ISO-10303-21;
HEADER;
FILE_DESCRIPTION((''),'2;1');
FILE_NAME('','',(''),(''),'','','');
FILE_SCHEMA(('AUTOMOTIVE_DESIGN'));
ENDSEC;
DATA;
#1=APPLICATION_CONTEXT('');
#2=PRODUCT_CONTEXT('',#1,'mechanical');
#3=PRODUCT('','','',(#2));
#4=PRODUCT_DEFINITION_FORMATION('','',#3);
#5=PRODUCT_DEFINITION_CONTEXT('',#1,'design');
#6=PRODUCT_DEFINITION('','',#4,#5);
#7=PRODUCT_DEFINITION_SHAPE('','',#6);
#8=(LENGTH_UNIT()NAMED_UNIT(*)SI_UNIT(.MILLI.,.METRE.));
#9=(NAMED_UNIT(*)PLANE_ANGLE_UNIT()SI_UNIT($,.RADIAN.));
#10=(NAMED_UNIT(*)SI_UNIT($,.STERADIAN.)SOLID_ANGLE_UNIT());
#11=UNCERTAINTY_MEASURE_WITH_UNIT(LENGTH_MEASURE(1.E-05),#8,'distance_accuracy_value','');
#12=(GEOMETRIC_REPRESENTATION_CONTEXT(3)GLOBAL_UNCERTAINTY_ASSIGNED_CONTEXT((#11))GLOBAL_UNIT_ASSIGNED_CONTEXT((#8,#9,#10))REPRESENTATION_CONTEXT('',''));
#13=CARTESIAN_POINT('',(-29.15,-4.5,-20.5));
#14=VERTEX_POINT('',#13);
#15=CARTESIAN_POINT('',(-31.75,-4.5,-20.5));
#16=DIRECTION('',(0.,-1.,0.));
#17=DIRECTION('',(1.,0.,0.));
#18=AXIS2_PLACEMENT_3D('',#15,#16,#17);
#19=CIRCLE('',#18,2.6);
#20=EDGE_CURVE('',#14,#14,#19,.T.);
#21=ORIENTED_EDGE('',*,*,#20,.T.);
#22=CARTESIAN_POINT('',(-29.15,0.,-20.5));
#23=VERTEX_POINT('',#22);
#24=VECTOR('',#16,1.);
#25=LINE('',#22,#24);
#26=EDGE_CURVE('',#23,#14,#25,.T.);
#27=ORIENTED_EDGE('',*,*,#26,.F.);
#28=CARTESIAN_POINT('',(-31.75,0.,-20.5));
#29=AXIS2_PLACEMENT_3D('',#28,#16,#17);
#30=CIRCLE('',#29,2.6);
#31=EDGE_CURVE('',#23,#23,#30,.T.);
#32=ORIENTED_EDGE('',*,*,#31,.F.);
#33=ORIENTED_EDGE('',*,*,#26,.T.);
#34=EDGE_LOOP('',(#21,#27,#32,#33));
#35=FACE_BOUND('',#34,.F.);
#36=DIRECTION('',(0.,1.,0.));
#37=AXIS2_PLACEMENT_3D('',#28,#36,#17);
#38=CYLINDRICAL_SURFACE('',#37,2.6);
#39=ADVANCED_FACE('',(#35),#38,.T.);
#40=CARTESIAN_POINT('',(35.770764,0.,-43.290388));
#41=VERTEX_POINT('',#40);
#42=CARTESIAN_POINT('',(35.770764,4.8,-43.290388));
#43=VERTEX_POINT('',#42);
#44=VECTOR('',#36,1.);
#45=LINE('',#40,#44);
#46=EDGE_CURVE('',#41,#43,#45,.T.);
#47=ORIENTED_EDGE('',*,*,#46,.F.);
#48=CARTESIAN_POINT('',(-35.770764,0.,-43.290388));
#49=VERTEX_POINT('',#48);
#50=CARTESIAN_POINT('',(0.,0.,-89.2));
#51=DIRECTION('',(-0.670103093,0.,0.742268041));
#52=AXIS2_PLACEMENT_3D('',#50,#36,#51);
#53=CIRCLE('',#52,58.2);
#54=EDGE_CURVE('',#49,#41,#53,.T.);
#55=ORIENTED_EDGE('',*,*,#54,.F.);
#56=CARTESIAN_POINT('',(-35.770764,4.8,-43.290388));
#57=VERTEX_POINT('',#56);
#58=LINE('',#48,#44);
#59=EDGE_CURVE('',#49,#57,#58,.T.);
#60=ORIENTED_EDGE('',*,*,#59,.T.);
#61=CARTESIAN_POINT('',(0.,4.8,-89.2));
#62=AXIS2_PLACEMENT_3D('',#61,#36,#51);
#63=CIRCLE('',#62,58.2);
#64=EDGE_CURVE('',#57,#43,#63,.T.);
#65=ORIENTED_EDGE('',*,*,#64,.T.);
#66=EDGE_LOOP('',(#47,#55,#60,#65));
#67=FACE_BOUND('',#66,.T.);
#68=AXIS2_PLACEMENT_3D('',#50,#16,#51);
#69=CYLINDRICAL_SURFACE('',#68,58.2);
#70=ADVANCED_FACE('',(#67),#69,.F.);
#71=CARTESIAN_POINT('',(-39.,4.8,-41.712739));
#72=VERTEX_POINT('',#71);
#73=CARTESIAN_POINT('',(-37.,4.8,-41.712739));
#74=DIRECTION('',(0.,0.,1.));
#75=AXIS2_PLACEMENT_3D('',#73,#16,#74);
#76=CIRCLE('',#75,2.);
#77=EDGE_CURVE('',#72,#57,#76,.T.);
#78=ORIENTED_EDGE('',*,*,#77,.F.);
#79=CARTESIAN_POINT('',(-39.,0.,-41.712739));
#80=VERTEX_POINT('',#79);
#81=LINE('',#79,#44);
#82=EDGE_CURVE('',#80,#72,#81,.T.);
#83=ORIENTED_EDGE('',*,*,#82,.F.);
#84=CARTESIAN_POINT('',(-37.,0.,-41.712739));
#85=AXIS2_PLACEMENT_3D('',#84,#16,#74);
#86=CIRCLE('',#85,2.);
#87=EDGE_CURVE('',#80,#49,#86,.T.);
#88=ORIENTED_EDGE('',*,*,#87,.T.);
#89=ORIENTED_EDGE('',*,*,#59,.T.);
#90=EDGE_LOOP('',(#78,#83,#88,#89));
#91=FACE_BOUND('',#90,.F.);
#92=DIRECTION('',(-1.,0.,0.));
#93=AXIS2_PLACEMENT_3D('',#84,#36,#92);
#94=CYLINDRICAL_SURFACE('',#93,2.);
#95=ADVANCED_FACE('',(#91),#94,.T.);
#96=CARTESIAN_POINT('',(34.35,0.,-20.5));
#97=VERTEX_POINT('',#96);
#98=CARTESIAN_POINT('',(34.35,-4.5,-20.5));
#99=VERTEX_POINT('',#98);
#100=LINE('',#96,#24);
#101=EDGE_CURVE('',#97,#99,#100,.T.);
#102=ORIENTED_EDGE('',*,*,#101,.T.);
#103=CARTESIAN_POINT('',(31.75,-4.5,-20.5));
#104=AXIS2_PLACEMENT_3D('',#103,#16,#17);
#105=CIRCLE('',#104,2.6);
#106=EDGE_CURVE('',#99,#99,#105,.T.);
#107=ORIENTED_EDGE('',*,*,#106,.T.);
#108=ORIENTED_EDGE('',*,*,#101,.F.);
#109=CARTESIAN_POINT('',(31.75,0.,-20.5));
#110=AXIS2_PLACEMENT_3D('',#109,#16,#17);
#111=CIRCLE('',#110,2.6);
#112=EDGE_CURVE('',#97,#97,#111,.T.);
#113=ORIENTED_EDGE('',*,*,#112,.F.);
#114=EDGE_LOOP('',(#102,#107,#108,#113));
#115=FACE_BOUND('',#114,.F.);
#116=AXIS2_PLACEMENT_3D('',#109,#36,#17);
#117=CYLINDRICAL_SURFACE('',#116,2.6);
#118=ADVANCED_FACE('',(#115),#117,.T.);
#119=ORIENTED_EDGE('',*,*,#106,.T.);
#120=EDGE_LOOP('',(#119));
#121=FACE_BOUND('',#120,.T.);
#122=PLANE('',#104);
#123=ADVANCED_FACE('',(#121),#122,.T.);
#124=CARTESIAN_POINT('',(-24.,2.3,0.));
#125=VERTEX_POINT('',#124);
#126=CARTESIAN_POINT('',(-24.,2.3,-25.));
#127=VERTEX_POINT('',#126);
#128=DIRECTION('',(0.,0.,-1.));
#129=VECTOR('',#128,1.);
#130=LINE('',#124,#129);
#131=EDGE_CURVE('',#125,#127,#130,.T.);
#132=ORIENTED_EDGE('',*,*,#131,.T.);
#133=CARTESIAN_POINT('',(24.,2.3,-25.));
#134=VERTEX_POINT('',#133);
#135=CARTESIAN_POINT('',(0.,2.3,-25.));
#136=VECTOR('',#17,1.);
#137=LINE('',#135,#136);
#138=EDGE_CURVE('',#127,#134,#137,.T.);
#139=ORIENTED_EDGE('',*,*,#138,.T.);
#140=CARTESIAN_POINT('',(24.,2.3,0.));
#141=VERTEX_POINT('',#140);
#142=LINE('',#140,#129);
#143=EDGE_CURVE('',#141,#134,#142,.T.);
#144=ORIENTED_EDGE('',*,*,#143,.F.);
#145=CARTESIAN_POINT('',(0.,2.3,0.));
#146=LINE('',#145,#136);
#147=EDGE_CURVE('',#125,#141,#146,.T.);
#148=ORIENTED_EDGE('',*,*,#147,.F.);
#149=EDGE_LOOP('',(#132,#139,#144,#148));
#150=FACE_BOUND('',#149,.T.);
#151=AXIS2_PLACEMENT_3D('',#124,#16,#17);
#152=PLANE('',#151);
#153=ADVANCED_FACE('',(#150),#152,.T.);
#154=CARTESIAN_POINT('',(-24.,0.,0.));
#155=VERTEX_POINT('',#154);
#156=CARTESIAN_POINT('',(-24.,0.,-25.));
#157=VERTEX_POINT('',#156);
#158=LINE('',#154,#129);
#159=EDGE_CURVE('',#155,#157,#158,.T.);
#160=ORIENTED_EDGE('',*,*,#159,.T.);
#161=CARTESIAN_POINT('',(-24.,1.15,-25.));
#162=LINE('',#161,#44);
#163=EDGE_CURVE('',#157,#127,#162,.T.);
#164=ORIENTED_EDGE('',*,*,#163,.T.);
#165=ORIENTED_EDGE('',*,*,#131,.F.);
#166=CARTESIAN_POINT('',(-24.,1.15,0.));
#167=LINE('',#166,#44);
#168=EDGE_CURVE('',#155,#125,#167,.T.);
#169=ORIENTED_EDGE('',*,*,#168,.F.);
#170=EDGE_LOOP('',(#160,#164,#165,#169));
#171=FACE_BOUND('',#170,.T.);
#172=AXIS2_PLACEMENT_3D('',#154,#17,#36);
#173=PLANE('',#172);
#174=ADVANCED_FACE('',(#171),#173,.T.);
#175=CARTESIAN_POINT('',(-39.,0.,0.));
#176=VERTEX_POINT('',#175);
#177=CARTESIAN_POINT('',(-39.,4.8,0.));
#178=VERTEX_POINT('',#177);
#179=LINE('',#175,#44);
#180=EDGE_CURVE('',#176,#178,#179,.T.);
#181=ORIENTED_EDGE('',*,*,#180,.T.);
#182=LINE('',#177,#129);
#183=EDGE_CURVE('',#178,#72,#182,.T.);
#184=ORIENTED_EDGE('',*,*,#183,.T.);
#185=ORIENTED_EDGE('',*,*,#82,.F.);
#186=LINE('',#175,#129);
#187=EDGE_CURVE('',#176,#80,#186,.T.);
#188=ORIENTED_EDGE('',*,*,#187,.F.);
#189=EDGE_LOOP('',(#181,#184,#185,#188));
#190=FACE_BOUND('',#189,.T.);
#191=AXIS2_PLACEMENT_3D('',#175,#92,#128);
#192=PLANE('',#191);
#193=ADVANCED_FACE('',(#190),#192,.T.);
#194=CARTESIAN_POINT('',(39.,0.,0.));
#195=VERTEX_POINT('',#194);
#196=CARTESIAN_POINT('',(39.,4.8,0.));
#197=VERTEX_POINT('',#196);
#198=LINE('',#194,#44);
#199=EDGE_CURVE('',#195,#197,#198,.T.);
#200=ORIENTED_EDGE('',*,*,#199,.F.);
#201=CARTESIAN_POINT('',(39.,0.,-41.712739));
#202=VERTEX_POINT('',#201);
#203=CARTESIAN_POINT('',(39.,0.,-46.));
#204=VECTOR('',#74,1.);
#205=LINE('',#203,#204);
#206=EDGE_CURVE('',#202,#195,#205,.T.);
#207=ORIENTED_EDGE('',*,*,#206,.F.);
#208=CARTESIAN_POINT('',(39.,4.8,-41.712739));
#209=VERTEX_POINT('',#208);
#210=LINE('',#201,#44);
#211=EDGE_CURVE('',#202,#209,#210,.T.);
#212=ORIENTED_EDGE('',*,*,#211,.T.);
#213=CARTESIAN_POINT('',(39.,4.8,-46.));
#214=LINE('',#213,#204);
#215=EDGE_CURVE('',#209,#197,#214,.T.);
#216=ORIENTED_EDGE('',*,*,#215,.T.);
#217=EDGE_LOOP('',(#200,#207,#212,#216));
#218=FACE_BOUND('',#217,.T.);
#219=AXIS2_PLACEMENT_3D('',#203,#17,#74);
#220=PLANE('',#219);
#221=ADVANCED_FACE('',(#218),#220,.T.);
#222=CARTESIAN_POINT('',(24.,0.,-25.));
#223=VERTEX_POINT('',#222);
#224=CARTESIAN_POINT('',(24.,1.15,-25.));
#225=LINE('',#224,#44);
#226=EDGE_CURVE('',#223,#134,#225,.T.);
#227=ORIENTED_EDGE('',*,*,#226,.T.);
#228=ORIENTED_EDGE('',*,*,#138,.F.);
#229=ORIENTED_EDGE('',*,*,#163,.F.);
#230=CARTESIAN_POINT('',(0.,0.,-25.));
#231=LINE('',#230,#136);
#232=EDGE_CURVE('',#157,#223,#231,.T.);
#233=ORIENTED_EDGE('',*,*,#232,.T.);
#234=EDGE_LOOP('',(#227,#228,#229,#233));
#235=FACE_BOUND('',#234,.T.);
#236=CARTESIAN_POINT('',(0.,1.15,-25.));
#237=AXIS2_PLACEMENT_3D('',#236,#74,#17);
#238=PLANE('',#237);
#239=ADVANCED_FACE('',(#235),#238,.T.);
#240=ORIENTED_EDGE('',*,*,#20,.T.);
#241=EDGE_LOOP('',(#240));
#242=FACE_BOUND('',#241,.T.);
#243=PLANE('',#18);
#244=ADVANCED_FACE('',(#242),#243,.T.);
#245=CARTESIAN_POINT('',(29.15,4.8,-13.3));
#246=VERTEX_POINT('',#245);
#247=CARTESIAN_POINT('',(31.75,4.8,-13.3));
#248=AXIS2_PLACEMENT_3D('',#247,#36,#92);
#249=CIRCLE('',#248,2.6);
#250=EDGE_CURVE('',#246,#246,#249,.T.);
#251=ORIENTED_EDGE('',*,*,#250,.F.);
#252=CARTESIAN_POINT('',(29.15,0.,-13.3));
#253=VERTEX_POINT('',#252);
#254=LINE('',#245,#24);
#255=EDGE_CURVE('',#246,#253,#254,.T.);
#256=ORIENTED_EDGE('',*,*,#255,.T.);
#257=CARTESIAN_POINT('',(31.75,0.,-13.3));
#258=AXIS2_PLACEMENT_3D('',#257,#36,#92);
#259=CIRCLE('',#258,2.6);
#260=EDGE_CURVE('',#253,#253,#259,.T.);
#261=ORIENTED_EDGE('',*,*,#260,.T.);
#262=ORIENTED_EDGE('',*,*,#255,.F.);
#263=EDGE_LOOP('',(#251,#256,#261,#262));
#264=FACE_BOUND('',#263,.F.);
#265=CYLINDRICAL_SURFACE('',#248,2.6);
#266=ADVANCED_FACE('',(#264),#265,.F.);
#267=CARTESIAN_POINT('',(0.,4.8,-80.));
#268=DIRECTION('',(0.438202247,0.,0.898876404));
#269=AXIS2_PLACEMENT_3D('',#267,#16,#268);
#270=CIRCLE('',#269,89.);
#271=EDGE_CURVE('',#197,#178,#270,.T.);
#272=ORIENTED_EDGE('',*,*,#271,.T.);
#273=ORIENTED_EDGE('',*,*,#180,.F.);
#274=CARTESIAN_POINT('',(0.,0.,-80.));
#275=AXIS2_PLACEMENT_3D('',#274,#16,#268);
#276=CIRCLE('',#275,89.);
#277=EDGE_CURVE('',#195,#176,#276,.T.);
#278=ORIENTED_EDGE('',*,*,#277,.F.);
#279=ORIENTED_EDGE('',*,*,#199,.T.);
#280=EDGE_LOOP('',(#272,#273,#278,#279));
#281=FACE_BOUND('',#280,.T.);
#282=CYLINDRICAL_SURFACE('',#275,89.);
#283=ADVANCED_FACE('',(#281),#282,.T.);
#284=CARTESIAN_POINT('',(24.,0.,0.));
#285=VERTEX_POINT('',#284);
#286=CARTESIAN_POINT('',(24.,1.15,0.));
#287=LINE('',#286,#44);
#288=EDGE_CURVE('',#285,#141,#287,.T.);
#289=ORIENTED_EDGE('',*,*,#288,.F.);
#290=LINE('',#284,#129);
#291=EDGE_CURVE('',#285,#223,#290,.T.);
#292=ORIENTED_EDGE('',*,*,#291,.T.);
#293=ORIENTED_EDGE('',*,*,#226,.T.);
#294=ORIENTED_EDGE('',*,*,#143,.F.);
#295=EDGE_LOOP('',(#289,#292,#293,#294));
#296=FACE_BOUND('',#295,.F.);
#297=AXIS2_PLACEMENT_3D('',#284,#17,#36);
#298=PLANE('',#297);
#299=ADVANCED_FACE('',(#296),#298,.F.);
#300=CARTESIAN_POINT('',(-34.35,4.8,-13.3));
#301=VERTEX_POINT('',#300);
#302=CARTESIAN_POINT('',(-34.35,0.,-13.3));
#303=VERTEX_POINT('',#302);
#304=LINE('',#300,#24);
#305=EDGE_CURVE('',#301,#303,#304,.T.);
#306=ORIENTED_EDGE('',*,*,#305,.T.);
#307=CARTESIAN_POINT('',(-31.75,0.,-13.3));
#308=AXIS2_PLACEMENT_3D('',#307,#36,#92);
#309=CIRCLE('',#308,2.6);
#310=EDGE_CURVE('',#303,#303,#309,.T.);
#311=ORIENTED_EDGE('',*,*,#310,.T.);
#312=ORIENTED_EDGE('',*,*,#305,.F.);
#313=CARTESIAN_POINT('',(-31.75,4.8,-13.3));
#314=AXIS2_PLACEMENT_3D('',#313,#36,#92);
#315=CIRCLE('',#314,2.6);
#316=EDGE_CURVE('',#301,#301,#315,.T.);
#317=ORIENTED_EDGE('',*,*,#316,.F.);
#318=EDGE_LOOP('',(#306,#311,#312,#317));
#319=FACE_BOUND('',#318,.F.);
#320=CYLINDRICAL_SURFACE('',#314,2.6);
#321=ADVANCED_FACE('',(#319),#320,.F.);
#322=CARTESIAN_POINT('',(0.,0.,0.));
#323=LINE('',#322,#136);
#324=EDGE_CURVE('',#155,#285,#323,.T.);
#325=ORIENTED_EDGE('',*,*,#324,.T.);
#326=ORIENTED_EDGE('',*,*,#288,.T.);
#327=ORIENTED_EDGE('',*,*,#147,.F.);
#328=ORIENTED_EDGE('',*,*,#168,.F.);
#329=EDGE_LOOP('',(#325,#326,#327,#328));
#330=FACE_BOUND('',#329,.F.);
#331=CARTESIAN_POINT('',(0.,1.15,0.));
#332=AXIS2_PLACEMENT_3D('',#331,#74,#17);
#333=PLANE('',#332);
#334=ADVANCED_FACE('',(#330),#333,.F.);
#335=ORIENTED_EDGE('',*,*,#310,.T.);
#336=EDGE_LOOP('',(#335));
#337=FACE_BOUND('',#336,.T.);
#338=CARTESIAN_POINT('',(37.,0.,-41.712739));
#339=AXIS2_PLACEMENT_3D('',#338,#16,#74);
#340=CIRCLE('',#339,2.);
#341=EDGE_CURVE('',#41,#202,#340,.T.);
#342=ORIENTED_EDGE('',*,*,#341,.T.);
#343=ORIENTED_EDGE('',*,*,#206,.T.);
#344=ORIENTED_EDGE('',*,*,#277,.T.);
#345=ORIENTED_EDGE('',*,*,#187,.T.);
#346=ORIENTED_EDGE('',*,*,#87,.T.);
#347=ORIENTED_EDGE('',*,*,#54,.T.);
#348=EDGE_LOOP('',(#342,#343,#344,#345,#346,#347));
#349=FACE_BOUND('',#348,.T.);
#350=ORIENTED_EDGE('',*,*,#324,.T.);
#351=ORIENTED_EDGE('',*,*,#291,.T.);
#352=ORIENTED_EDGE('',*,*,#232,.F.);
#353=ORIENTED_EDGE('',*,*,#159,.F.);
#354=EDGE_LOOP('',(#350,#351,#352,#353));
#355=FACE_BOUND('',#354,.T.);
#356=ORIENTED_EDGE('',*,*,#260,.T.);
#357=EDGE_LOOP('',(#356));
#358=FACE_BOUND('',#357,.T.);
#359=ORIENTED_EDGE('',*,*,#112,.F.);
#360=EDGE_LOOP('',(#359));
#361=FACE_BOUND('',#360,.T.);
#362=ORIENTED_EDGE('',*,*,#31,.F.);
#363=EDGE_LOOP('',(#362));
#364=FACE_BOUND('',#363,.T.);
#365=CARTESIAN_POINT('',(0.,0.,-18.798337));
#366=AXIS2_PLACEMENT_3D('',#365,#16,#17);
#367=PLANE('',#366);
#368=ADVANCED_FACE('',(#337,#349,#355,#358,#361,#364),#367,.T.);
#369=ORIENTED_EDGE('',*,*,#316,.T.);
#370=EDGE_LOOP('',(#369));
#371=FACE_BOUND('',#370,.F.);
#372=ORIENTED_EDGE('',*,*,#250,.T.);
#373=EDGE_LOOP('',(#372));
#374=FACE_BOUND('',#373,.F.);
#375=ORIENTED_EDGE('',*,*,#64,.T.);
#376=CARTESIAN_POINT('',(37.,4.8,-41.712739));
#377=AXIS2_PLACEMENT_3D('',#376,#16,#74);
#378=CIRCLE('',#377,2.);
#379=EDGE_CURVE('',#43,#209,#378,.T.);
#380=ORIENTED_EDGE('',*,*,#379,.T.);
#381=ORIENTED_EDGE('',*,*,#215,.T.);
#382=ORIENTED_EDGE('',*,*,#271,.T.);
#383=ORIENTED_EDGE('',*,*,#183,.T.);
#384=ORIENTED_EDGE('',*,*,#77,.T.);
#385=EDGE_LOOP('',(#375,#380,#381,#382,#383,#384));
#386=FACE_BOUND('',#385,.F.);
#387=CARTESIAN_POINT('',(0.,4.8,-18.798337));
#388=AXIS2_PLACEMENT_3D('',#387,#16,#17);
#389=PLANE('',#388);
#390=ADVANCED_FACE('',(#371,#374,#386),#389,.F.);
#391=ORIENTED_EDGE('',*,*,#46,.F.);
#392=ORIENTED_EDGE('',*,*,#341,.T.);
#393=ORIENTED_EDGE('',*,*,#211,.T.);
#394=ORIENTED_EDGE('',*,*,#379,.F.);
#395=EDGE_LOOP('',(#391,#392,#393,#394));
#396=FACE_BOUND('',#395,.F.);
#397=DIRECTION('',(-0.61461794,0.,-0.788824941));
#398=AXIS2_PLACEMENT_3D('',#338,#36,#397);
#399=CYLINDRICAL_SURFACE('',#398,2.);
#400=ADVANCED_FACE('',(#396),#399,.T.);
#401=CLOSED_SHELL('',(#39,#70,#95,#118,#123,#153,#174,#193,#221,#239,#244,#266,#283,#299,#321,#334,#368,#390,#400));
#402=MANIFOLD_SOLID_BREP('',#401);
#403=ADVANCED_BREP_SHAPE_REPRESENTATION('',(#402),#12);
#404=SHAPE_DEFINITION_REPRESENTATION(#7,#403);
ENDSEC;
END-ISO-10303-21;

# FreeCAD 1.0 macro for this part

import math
import FreeCAD as App
import Part
import Sketcher
from FreeCAD import Vector


def edges_at(feature, points):
    """Names of the edges that pass closest to the given points."""
    edges = feature.Shape.Edges
    near = lambda p: min(range(len(edges)), key=lambda i: edges[i].distToShape(Part.Vertex(*p))[0])
    return sorted({f"Edge{near(p) + 1}" for p in points})


def add_polygon(sketch, points):
    """Adds a closed chain of lines whose ends are joined by coincident constraints."""
    first, n = sketch.GeometryCount, len(points)
    for a, b in zip(points, points[1:] + points[:1]):
        sketch.addGeometry(Part.LineSegment(App.Vector(*a, 0), App.Vector(*b, 0)), False)
    for i in range(n):
        sketch.addConstraint(Sketcher.Constraint("Coincident", first + i, 2, first + (i + 1) % n, 1))

doc = App.newDocument("Part")
params = doc.addObject("Spreadsheet::Sheet", "Params")
for row, (alias, value) in enumerate([
    ("sketch1_radius", "89 mm"),
    ("sketch1_radius2", "58.2 mm"),
    ("sketch1_height", "46 mm"),
    ("pad1_length", "4.8 mm"),
    ("sketch2_diameter", "5.2 mm"),
    ("pad2_length", "4.5 mm"),
    ("sketch3_diameter", "5.2 mm"),
    ("fillet_radius", "2 mm"),
    ("sketch4_width", "48 mm"),
    ("sketch4_height", "2.3 mm"),
    ("pocket2_length", "25 mm"),
], start=1):
    params.set(f"A{row}", alias)
    params.set(f"B{row}", "=" + value)
    params.setAlias(f"B{row}", alias)

body = doc.addObject("PartDesign::Body", "Body")

# Sketch on XZ plane
sketch1 = body.newObject("Sketcher::SketchObject", "Sketch")
sketch1.AttachmentSupport = (doc.getObject("XZ_Plane"), [""])
sketch1.MapMode = "FlatFace"
sketch1.addGeometry([
    Part.LineSegment(Vector(-39, 0, 0), Vector(-39, -46, 0)),
    Part.ArcOfCircle(Part.Circle(Vector(0, -89, 0), Vector(0, 0, 1), 58), math.radians(48), math.radians(132)),
    Part.LineSegment(Vector(39, -46, 0), Vector(39, 0, 0)),
    Part.ArcOfCircle(Part.Circle(Vector(0, -80, 0), Vector(0, 0, 1), 89), math.radians(64), math.radians(116)),
], False)
sketch1.addConstraint([
    Sketcher.Constraint("Coincident", 0, 2, 1, 2),
    Sketcher.Constraint("Coincident", 1, 1, 2, 1),
    Sketcher.Constraint("Coincident", 2, 2, 3, 1),
    Sketcher.Constraint("Coincident", 3, 2, 0, 1),
    Sketcher.Constraint("Vertical", 0),
    Sketcher.Constraint("Vertical", 2),
    Sketcher.Constraint("Symmetric", 2, 2, 3, 2, -1, 1),
    Sketcher.Constraint("PointOnObject", 1, 3, -2),
    Sketcher.Constraint("PointOnObject", 3, 3, -2),
    Sketcher.Constraint("Radius", 3, 89.0),
    Sketcher.Constraint("Radius", 1, 58.2),
    Sketcher.Constraint("DistanceY", 0, 2, 0, 1, 46.0),
    Sketcher.Constraint("DistanceY", 3, 3, -1, 1, 80.0),
])
sketch1.setExpression("Constraints[9]", "Params.sketch1_radius")
sketch1.setExpression("Constraints[10]", "Params.sketch1_radius2")
sketch1.setExpression("Constraints[11]", "Params.sketch1_height")
pad1 = body.newObject("PartDesign::Pad", "Pad")
pad1.Profile = sketch1
pad1.setExpression("Length", "Params.pad1_length")
pad1.Reversed = True

# Sketch on XZ plane
sketch2 = body.newObject("Sketcher::SketchObject", "Sketch001")
sketch2.AttachmentSupport = (doc.getObject("XZ_Plane"), [""])
sketch2.MapMode = "FlatFace"
sketch2.addGeometry([
    Part.Circle(Vector(-31.8, -20.5, 0), Vector(0, 0, 1), 2.6),
    Part.Circle(Vector(31.8, -20.5, 0), Vector(0, 0, 1), 2.6),
], False)
sketch2.addConstraint([
    Sketcher.Constraint("Equal", 0, 1),
    Sketcher.Constraint("Symmetric", 0, 3, 1, 3, -2),
    Sketcher.Constraint("Diameter", 0, 5.2),
    Sketcher.Constraint("DistanceY", 0, 3, -1, 1, 20.5),
    Sketcher.Constraint("DistanceX", 0, 3, 1, 3, 63.5),
])
sketch2.setExpression("Constraints[2]", "Params.sketch2_diameter")
pad2 = body.newObject("PartDesign::Pad", "Pad001")
pad2.Profile = sketch2
pad2.setExpression("Length", "Params.pad2_length")

# Sketch on XZ plane
sketch3 = body.newObject("Sketcher::SketchObject", "Sketch002")
sketch3.AttachmentSupport = (doc.getObject("XZ_Plane"), [""])
sketch3.MapMode = "FlatFace"
sketch3.AttachmentOffset = App.Placement(Vector(0, 0, -4.8), App.Rotation())
sketch3.addGeometry([
    Part.Circle(Vector(31.8, -13.3, 0), Vector(0, 0, 1), 2.6),
    Part.Circle(Vector(-31.8, -13.3, 0), Vector(0, 0, 1), 2.6),
], False)
sketch3.addConstraint([
    Sketcher.Constraint("Equal", 0, 1),
    Sketcher.Constraint("Symmetric", 0, 3, 1, 3, -2),
    Sketcher.Constraint("Diameter", 0, 5.2),
    Sketcher.Constraint("DistanceY", 0, 3, -1, 1, 13.3),
    Sketcher.Constraint("DistanceX", 1, 3, 0, 3, 63.5),
])
sketch3.setExpression("Constraints[2]", "Params.sketch3_diameter")
pocket1 = body.newObject("PartDesign::Pocket", "Pocket")
pocket1.Profile = sketch3
pocket1.Type = "ThroughAll"
pocket1.Reversed = True
doc.recompute()

fillet = body.newObject("PartDesign::Fillet", "Fillet")
fillet.Base = (pocket1, edges_at(pocket1, [(-39, 2.4, -46), (39, 2.4, -46)]))
fillet.setExpression("Radius", "Params.fillet_radius")

# Sketch on XY plane
sketch4 = body.newObject("Sketcher::SketchObject", "Sketch003")
sketch4.AttachmentSupport = (doc.getObject("XY_Plane"), [""])
sketch4.MapMode = "FlatFace"
add_polygon(sketch4, [(-24, 2.3), (-24, 0), (24, 0), (24, 2.3)])  # lines 0-3
sketch4.addConstraint([
    Sketcher.Constraint("Vertical", 0),
    Sketcher.Constraint("Horizontal", 1),
    Sketcher.Constraint("Vertical", 2),
    Sketcher.Constraint("Horizontal", 3),
    Sketcher.Constraint("Symmetric", 0, 2, 1, 2, -1, 1),
    Sketcher.Constraint("DistanceX", 1, 1, 1, 2, 48.0),
    Sketcher.Constraint("DistanceY", 0, 2, 0, 1, 2.3),
])
sketch4.setExpression("Constraints[9]", "Params.sketch4_width")
sketch4.setExpression("Constraints[10]", "Params.sketch4_height")
pocket2 = body.newObject("PartDesign::Pocket", "Pocket001")
pocket2.Profile = sketch4
pocket2.setExpression("Length", "Params.pocket2_length")

doc.recompute()
